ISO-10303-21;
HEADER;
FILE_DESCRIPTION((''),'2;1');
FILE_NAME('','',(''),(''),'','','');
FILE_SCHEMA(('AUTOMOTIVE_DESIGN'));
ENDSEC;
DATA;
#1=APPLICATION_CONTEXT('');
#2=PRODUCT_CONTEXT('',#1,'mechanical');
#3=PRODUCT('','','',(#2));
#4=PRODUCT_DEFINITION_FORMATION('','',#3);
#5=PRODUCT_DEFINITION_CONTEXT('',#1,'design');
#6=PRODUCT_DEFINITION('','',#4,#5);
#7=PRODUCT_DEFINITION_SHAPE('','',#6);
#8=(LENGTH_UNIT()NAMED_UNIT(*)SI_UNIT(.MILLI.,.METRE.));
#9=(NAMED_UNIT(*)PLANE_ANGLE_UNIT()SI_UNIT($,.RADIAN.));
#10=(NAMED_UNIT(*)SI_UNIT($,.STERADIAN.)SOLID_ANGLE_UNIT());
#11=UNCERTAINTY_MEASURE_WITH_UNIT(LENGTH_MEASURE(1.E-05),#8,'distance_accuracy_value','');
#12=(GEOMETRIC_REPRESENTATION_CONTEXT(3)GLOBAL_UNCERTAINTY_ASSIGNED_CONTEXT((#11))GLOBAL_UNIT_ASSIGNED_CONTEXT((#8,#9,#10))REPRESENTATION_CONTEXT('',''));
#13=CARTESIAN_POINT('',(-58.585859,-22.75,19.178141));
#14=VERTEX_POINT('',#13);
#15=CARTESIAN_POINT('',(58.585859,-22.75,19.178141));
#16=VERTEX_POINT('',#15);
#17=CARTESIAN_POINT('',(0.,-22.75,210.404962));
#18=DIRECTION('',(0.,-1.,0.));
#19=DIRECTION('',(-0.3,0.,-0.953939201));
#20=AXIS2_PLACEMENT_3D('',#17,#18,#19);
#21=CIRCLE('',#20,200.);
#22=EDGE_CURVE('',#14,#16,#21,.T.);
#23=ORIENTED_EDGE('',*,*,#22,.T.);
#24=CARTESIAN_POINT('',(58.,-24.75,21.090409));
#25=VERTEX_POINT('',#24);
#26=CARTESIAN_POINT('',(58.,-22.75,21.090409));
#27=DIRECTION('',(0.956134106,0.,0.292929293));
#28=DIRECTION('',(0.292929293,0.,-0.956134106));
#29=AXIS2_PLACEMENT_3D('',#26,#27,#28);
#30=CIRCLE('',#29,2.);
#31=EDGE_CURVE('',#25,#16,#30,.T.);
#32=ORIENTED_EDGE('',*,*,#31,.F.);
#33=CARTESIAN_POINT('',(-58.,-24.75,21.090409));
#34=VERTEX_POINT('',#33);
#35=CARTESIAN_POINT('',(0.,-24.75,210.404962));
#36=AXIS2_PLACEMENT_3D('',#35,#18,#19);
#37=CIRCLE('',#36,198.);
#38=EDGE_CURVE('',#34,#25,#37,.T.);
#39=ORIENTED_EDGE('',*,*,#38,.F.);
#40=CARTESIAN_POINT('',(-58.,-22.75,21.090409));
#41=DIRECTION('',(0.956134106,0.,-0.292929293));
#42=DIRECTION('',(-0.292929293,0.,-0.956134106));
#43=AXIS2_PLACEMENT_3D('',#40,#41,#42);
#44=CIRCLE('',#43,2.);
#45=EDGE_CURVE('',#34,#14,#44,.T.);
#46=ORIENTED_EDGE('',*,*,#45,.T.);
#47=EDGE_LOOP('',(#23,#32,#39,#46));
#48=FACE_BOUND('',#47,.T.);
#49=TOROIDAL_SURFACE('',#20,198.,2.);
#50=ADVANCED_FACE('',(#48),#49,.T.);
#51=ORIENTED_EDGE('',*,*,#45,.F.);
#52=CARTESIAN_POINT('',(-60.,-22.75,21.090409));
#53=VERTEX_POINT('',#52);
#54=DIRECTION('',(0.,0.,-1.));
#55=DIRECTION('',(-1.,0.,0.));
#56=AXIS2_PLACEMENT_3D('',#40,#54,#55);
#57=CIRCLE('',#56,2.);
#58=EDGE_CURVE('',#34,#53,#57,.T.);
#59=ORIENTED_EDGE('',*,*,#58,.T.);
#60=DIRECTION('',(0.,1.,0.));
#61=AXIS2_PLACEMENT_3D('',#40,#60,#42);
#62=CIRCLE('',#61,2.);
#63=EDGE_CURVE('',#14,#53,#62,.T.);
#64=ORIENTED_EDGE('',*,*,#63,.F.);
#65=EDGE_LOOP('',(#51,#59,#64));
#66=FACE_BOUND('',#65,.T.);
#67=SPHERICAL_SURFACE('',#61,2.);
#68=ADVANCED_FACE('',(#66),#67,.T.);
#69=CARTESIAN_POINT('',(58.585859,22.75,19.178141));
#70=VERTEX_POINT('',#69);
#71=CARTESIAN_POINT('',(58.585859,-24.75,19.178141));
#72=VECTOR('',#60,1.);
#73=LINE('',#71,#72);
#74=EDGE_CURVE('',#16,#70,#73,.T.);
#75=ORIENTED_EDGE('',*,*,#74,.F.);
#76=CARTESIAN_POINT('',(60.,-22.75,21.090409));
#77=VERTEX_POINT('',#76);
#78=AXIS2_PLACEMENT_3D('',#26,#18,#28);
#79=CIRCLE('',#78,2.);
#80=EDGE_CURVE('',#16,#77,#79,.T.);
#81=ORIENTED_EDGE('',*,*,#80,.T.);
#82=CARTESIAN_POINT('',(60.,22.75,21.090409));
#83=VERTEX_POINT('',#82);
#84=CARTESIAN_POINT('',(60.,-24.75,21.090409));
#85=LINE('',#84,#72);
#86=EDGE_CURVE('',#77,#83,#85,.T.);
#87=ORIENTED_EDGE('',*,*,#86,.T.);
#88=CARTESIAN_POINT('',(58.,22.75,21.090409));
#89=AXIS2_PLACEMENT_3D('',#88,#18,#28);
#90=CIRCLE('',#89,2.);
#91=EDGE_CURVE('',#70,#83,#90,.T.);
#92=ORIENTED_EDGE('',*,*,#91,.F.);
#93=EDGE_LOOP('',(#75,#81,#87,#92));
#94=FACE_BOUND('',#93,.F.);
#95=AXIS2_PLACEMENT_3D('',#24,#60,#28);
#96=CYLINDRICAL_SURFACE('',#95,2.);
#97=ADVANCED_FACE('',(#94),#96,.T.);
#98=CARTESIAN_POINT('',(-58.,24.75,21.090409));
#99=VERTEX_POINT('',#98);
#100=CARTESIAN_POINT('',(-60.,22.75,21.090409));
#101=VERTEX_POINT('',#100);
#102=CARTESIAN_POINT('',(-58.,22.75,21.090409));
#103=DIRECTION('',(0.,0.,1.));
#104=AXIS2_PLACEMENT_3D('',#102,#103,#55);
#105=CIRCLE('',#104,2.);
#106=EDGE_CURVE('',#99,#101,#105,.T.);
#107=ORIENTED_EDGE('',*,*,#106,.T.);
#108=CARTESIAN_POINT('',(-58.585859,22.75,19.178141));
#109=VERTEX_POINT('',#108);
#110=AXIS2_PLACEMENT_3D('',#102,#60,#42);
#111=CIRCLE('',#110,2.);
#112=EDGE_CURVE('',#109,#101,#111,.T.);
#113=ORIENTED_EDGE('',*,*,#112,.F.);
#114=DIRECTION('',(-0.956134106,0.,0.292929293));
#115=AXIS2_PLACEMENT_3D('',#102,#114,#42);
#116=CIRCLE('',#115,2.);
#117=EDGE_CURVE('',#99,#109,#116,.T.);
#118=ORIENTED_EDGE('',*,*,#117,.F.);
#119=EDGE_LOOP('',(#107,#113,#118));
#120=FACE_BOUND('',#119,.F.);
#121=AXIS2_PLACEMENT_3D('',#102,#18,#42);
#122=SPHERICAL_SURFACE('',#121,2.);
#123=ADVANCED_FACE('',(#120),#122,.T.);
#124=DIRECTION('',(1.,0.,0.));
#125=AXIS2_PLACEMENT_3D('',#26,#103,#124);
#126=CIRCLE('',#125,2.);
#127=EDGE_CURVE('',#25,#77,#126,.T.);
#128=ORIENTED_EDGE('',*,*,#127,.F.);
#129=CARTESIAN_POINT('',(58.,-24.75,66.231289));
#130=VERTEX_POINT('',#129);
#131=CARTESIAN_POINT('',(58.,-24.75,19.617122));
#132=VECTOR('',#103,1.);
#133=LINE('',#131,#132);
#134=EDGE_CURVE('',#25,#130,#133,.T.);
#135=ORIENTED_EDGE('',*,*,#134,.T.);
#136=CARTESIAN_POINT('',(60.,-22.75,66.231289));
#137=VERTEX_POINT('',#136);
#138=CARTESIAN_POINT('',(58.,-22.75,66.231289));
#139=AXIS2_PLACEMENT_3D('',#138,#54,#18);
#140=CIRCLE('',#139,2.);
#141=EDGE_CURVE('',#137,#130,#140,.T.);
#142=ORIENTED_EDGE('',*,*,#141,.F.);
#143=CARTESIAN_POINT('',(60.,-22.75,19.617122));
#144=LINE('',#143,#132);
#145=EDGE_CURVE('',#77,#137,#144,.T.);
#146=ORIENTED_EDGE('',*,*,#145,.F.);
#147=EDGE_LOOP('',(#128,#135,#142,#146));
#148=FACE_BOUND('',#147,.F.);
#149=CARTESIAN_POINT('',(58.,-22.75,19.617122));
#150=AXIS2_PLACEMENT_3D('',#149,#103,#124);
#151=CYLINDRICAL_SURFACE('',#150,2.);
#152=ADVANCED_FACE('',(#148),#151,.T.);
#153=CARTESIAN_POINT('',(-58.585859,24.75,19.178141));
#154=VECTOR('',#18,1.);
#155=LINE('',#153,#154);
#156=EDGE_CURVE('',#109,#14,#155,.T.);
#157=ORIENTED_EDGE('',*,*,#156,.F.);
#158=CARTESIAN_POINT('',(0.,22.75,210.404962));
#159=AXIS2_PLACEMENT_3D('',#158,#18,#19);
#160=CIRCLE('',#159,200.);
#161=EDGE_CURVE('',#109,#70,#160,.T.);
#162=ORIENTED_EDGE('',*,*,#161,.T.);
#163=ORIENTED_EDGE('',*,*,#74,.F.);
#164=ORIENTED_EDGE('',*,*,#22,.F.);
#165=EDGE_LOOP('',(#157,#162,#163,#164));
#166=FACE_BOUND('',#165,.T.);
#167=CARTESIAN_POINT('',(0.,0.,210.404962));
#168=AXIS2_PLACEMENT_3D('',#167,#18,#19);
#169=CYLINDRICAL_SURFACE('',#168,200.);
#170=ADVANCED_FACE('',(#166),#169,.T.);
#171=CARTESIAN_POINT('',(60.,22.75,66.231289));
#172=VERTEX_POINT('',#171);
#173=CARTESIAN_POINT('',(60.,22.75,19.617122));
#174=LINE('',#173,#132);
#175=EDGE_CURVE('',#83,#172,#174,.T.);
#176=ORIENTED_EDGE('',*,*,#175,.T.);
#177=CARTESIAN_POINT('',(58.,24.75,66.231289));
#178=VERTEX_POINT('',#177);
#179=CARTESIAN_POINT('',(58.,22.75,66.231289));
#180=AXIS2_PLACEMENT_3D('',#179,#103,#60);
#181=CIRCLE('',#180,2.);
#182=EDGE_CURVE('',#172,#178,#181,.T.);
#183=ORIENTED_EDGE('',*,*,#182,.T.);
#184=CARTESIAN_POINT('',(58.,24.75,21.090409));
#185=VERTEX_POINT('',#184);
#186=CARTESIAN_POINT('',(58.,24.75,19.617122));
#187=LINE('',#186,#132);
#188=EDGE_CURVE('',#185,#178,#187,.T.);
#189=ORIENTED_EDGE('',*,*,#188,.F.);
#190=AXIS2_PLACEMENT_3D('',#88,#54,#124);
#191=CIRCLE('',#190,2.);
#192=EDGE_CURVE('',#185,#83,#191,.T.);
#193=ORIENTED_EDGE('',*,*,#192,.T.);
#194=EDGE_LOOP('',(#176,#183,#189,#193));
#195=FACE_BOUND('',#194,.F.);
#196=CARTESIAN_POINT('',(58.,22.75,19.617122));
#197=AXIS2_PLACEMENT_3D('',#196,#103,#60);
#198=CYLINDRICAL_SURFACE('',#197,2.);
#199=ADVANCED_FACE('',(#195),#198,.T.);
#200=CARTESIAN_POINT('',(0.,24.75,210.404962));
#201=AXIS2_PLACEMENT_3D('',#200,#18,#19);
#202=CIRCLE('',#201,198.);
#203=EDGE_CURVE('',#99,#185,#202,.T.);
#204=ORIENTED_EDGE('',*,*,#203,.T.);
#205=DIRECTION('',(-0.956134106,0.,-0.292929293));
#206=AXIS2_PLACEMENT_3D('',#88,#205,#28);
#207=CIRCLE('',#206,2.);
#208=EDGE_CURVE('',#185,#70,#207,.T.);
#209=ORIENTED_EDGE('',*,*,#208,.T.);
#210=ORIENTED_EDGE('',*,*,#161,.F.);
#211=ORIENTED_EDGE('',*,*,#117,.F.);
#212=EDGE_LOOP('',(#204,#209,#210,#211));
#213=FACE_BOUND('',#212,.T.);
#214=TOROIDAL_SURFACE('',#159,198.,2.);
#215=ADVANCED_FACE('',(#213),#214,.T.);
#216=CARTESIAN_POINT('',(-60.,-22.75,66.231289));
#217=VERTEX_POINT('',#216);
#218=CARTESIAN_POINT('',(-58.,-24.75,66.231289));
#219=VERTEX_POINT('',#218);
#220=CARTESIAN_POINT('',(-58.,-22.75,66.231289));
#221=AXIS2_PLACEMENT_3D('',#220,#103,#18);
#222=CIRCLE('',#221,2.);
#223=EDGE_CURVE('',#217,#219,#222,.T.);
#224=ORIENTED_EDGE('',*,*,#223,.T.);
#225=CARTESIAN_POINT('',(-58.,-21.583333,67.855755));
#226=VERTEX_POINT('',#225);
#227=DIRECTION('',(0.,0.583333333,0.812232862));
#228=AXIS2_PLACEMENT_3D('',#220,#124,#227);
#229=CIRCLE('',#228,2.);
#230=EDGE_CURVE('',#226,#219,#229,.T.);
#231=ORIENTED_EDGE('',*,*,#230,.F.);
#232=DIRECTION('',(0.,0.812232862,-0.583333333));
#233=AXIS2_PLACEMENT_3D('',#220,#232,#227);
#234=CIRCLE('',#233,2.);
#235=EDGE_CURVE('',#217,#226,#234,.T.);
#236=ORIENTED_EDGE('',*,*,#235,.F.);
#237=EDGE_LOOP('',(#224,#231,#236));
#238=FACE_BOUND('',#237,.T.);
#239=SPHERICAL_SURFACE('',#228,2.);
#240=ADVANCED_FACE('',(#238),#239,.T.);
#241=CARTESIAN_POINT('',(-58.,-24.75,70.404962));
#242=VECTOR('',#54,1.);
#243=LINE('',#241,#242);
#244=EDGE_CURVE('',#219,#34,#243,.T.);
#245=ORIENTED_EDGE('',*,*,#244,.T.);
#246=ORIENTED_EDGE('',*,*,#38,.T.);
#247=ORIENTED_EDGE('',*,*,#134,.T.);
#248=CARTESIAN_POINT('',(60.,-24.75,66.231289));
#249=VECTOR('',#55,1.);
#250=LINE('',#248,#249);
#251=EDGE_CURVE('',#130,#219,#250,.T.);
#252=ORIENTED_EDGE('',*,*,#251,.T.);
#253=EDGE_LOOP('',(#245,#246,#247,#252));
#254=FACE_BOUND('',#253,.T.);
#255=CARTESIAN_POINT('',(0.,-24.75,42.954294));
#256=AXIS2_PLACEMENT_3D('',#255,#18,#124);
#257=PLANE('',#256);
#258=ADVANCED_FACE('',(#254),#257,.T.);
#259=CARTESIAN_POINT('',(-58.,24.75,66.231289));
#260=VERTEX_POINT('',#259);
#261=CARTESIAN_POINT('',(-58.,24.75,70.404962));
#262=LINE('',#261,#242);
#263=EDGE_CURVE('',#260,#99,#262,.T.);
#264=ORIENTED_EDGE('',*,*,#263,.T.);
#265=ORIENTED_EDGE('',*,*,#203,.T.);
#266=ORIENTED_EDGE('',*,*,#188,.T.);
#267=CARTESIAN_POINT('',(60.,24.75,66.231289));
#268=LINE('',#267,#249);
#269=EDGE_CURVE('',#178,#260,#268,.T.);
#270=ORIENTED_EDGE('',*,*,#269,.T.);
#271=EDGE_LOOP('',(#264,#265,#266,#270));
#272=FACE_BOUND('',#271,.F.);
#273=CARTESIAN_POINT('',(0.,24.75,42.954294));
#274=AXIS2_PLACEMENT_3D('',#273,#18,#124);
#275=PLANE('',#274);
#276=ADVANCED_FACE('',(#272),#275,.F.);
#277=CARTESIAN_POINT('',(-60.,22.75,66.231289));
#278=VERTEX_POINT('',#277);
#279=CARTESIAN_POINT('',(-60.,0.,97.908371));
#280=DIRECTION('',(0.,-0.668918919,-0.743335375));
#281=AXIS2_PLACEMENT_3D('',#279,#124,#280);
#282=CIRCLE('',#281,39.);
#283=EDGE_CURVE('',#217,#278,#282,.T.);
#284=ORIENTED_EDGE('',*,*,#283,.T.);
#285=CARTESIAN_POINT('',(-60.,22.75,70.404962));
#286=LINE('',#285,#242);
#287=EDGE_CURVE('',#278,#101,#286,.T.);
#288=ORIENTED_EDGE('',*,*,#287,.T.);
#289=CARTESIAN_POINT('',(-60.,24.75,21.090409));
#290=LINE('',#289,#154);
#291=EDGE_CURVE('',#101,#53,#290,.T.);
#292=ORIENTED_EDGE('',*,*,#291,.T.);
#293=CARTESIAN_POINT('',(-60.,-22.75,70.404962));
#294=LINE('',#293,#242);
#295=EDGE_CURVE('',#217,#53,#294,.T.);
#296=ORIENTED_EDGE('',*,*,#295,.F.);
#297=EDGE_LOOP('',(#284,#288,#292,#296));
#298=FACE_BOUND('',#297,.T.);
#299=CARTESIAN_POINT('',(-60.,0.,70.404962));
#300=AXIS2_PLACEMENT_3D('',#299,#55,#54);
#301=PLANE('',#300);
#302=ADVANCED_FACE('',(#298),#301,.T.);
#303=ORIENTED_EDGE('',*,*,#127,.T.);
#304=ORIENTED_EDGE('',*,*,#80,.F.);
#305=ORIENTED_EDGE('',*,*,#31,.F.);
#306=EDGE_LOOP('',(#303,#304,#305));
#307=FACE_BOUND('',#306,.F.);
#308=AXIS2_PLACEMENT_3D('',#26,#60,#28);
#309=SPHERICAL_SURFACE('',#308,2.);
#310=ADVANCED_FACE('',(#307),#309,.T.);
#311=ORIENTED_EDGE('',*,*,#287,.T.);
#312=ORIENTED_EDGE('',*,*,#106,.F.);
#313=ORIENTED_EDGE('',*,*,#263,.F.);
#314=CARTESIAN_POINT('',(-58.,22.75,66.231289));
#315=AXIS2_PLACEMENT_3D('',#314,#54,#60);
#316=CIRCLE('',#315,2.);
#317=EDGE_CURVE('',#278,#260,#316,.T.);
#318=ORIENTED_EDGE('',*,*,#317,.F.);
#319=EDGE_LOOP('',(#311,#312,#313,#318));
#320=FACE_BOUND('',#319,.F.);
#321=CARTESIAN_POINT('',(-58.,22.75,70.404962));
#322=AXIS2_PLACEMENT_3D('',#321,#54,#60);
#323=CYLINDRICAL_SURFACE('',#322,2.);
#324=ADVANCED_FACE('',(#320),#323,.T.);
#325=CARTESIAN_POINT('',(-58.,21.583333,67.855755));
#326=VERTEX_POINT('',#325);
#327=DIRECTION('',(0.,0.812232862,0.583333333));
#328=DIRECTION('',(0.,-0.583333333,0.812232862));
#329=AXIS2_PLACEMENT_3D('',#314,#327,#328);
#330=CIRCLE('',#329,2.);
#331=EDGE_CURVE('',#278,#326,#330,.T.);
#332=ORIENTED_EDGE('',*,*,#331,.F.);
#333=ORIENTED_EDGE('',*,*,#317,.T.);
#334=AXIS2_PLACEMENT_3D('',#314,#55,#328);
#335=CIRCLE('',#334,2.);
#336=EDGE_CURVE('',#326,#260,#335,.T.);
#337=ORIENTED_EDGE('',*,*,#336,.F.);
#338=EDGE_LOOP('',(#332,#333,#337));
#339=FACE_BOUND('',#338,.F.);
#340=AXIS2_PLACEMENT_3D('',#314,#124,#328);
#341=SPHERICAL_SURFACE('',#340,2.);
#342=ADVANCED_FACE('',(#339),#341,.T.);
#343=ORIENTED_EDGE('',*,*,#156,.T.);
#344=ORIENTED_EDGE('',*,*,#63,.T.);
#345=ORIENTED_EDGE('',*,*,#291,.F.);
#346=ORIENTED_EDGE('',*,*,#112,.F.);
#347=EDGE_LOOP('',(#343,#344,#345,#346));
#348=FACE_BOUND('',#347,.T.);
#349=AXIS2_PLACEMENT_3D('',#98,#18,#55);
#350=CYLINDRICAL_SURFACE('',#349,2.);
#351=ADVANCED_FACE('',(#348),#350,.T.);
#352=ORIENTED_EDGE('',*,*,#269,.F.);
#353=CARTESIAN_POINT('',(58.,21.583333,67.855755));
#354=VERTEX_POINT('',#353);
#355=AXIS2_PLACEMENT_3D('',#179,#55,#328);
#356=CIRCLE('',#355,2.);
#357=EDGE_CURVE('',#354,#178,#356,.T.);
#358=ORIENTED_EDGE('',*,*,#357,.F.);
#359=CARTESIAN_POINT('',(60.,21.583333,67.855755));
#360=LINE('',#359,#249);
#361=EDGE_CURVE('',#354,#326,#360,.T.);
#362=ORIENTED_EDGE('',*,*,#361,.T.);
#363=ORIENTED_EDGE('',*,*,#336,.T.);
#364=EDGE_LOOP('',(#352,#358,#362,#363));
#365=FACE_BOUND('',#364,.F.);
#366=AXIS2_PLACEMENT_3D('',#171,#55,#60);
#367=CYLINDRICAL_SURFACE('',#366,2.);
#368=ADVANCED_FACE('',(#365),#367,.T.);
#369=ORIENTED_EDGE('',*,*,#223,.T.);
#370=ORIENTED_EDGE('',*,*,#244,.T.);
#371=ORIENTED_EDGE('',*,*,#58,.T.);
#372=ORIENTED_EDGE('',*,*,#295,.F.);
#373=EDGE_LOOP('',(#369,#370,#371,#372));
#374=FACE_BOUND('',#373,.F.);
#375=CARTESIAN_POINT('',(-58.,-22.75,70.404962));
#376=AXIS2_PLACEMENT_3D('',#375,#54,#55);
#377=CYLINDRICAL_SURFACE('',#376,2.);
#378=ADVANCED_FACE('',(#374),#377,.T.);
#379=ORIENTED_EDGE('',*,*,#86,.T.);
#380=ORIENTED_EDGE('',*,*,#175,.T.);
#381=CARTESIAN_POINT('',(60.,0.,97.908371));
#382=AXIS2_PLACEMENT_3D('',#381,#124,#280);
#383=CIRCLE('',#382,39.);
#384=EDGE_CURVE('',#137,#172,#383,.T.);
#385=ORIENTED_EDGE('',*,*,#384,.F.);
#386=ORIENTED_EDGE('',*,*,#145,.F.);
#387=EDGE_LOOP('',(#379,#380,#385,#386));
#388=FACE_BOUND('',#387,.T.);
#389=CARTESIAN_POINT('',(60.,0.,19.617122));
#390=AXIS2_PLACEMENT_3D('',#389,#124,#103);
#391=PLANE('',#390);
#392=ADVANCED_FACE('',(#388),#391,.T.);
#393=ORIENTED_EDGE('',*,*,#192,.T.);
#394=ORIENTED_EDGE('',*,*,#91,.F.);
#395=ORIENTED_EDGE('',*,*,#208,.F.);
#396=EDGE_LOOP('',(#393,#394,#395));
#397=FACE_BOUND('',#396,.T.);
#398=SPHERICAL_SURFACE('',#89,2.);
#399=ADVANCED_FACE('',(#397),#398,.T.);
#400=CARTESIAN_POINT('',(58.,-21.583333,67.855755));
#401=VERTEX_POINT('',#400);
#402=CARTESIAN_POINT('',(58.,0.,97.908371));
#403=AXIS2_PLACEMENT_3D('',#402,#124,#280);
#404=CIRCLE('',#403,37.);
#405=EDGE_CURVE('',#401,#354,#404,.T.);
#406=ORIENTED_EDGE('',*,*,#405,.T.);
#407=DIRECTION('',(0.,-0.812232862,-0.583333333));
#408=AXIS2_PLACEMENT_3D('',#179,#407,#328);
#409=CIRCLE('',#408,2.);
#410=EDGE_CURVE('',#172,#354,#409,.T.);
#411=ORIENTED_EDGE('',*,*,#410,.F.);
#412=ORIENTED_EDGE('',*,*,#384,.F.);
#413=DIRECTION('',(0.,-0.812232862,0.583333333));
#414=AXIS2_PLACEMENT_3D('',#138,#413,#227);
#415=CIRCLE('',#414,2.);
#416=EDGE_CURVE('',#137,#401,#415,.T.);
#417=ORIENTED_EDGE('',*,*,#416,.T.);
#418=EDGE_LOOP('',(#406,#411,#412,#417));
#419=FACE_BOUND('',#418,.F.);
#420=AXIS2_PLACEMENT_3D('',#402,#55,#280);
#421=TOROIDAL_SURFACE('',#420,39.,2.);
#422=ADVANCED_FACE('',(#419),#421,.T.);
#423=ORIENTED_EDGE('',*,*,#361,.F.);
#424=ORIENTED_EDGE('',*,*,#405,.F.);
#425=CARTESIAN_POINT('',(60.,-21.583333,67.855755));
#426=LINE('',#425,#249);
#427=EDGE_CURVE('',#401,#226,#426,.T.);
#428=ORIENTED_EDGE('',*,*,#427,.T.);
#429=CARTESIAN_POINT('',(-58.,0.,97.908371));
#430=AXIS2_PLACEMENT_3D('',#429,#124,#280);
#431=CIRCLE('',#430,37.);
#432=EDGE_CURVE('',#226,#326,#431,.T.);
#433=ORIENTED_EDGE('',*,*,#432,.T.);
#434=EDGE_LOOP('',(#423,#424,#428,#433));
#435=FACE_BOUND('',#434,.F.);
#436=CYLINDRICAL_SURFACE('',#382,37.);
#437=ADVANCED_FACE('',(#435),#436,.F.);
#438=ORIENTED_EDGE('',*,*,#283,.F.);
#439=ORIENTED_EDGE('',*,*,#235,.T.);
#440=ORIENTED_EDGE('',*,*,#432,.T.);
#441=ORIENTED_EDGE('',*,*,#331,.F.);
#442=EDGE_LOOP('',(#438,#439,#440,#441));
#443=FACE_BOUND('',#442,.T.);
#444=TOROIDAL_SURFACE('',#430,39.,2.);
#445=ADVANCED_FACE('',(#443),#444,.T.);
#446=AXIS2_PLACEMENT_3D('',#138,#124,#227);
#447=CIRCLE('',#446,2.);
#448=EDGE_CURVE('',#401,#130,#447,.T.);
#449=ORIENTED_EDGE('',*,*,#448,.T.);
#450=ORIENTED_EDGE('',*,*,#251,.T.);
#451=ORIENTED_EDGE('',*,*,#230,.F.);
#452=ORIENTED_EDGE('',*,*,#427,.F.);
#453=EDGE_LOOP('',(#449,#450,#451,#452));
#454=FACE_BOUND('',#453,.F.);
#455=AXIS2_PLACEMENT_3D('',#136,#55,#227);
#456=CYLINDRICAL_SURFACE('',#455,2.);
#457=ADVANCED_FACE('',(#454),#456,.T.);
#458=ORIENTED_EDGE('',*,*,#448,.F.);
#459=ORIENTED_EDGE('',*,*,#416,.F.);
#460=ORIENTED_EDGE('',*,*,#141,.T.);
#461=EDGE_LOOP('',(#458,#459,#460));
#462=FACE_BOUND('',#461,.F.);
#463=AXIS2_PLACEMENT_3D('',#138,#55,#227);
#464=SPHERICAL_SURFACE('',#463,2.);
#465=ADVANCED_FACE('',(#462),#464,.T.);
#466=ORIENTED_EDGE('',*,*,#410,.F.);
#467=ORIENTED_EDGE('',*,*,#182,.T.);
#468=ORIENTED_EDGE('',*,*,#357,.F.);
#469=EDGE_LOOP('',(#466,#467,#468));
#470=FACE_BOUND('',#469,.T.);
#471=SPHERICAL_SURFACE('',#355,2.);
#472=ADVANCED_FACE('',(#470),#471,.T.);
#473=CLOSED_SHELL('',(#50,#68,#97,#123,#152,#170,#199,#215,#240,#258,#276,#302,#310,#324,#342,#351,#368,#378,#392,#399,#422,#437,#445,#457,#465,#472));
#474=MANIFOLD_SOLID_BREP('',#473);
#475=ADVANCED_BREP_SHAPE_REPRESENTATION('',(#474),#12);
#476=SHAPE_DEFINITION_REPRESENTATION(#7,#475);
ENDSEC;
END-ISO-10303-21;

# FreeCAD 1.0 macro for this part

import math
import FreeCAD as App
import Part
import Sketcher

V = App.Vector

doc = App.newDocument("Part")
body = doc.addObject("PartDesign::Body", "Body")

# Sketch on XZ plane
sketch1 = body.newObject("Sketcher::SketchObject", "Sketch")
sketch1.AttachmentSupport = (doc.getObject("XZ_Plane"), [""])
sketch1.MapMode = "FlatFace"
sketch1.addGeometry(Part.LineSegment(V(60, 70, 0), V(-60, 70, 0)), False)
sketch1.addGeometry(Part.LineSegment(V(-60, 70, 0), V(-60, 20, 0)), False)
sketch1.addGeometry(Part.ArcOfCircle(Part.Circle(V(0, 210, 0), V(0, 0, 1), 200), math.radians(-107), math.radians(-73)), False)
sketch1.addGeometry(Part.LineSegment(V(60, 20, 0), V(60, 70, 0)), False)
sketch1.addConstraint(Sketcher.Constraint("Coincident", 0, 2, 1, 1))
sketch1.addConstraint(Sketcher.Constraint("Coincident", 1, 2, 2, 1))
sketch1.addConstraint(Sketcher.Constraint("Coincident", 2, 2, 3, 1))
sketch1.addConstraint(Sketcher.Constraint("Coincident", 3, 2, 0, 1))
sketch1.addConstraint(Sketcher.Constraint("Horizontal", 0))
sketch1.addConstraint(Sketcher.Constraint("Vertical", 1))
sketch1.addConstraint(Sketcher.Constraint("Vertical", 3))
sketch1.addConstraint(Sketcher.Constraint("Symmetric", 1, 2, 2, 2, -2))
sketch1.addConstraint(Sketcher.Constraint("Radius", 2, 200.0))
sketch1.addConstraint(Sketcher.Constraint("DistanceX", 0, 2, 0, 1, 120.0))
sketch1.addConstraint(Sketcher.Constraint("DistanceY", 0, 2, 2, 3, 140.0))
sketch1.addConstraint(Sketcher.Constraint("DistanceY", -1, 1, 1, 2, 19.617122))
pad1 = body.newObject("PartDesign::Pad", "Pad")
pad1.Profile = sketch1
pad1.Length = 49.5
pad1.Midplane = True

# Sketch on YZ plane
sketch2 = body.newObject("Sketcher::SketchObject", "Sketch001")
sketch2.AttachmentSupport = (doc.getObject("YZ_Plane"), [""])
sketch2.MapMode = "FlatFace"
sketch2.AttachmentOffset = App.Placement(V(0, 0, 60), App.Rotation())
sketch2.addGeometry(Part.LineSegment(V(25, 70, 0), V(-25, 70, 0)), False)
sketch2.addGeometry(Part.ArcOfCircle(Part.Circle(V(0, 98, 0), V(0, 0, 1), 37), math.radians(-132), math.radians(-48)), False)
sketch2.addConstraint(Sketcher.Constraint("Coincident", 0, 1, 1, 2))
sketch2.addConstraint(Sketcher.Constraint("Coincident", 1, 1, 0, 2))
sketch2.addConstraint(Sketcher.Constraint("Horizontal", 0))
sketch2.addConstraint(Sketcher.Constraint("PointOnObject", 1, 3, -2))
sketch2.addConstraint(Sketcher.Constraint("Radius", 1, 37.0))
sketch2.addConstraint(Sketcher.Constraint("DistanceX", 0, 2, 0, 1, 49.5))
sketch2.addConstraint(Sketcher.Constraint("DistanceY", -1, 1, 1, 3, 97.908371))
pocket1 = body.newObject("PartDesign::Pocket", "Pocket")
pocket1.Profile = sketch2
pocket1.Length = 120
doc.recompute()

fillet = body.newObject("PartDesign::Fillet", "Fillet")
fillet.Base = (pocket1, ["Edge1"])
fillet.UseAllEdges = True
fillet.Radius = 2

doc.recompute()
